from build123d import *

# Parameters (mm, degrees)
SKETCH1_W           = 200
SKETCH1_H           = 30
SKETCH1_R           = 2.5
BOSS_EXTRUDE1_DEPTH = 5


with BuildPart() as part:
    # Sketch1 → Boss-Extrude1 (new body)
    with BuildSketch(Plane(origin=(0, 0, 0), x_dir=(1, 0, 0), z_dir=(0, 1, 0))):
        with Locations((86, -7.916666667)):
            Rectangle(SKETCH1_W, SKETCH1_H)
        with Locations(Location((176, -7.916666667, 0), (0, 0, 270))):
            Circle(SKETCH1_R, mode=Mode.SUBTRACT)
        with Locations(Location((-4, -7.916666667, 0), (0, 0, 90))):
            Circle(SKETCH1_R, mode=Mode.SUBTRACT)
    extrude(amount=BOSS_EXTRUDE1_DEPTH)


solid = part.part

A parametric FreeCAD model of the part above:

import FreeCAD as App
import Part
import Sketcher
Q = App.Units.Quantity


def add_polygon(sketch, points):
    """Adds a closed chain of lines whose ends are joined by coincident constraints."""
    first, n = sketch.GeometryCount, len(points)
    for a, b in zip(points, points[1:] + points[:1]):
        sketch.addGeometry(Part.LineSegment(App.Vector(*a, 0), App.Vector(*b, 0)), False)
    for i in range(n):
        sketch.addConstraint(Sketcher.Constraint("Coincident", first + i, 2, first + (i + 1) % n, 1))

doc = App.newDocument("Part")
params = doc.addObject("Spreadsheet::Sheet", "Params")
for row, (alias, value) in enumerate([
    ("sketch1_diameter", "5 mm"),
    ("sketch1_width", "200 mm"),
    ("sketch1_height", "30 mm"),
    ("pad1_length", "5 mm"),
], start=1):
    params.set(f"A{row}", alias)
    params.set(f"B{row}", "=" + value)
    params.setAlias(f"B{row}", alias)

body = doc.addObject("PartDesign::Body", "Body")

sketch1 = doc.addObject("Sketcher::SketchObject", "Sketch")
body.addObject(sketch1)
sketch1.AttachmentSupport = (doc.XZ_Plane, [""])
sketch1.MapMode = "FlatFace"
add_polygon(sketch1, [(-14, -7.1), (-14, 22.9), (186, 22.9), (186, -7.1)])
sketch1.addGeometry(Part.Circle(App.Vector(-4, 7.9, 0), App.Vector(0, 0, 1), 2.5), False)
sketch1.addGeometry(Part.Circle(App.Vector(176, 7.9, 0), App.Vector(0, 0, 1), 2.5), False)
sketch1.addConstraint([
    Sketcher.Constraint("Vertical", 0),
    Sketcher.Constraint("Horizontal", 1),
    Sketcher.Constraint("Vertical", 2),
    Sketcher.Constraint("Horizontal", 3),
    Sketcher.Constraint("Equal", 4, 5),
    Sketcher.Constraint("Horizontal", 4, 3, 5, 3),
    Sketcher.Constraint("Diameter", 4, Q("5 mm")),
    Sketcher.Constraint("DistanceX", 1, 1, 1, 2, Q("200 mm")),
    Sketcher.Constraint("DistanceY", 0, 1, 0, 2, Q("30 mm")),
    Sketcher.Constraint("DistanceX", 4, 3, -1, 1, Q("4 mm")),
    Sketcher.Constraint("DistanceX", -1, 1, 5, 3, Q("176 mm")),
    Sketcher.Constraint("DistanceX", 0, 2, -1, 1, Q("14 mm")),
    Sketcher.Constraint("DistanceY", 4, 3, 0, 2, Q("15 mm")),
    Sketcher.Constraint("DistanceY", -1, 1, 4, 3, Q("7.916667 mm")),
])
sketch1.setExpression("Constraints[10]", "Params.sketch1_diameter")
sketch1.setExpression("Constraints[11]", "Params.sketch1_width")
sketch1.setExpression("Constraints[12]", "Params.sketch1_height")
pad1 = doc.addObject("PartDesign::Pad", "Pad")
body.addObject(pad1)
pad1.Profile = sketch1
pad1.setExpression("Length", "Params.pad1_length")
pad1.Reversed = True

doc.recompute()
